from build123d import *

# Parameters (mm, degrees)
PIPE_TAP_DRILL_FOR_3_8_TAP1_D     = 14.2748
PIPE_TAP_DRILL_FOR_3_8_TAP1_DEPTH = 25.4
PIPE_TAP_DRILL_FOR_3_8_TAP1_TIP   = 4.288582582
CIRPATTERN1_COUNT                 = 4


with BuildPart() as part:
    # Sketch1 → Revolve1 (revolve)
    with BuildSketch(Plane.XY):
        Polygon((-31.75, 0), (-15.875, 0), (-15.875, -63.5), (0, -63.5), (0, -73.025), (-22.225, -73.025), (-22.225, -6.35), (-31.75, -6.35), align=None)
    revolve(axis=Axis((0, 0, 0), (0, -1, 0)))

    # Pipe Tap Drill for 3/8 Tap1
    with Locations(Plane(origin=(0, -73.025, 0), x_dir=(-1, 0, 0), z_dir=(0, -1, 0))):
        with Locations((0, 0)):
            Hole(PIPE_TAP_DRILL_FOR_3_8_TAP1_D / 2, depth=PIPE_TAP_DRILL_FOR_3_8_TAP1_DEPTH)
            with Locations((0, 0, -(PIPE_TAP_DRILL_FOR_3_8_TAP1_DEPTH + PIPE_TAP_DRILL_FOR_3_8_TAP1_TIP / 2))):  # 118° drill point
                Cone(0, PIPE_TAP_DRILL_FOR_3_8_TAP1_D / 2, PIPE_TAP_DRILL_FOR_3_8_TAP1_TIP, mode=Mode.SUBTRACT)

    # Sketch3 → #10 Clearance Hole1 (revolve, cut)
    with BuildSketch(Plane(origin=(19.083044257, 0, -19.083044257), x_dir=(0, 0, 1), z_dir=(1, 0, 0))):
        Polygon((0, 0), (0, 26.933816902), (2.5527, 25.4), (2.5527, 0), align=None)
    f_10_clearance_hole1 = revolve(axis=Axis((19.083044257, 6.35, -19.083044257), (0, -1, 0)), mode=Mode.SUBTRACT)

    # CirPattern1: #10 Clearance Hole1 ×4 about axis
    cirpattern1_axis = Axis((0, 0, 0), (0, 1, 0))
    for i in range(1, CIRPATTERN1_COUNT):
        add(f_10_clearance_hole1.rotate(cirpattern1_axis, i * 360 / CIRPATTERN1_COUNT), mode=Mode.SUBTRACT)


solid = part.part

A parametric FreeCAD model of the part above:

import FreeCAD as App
import Part
import Sketcher
Q = App.Units.Quantity


def add_polygon(sketch, points):
    """Adds a closed chain of lines whose ends are joined by coincident constraints."""
    first, n = sketch.GeometryCount, len(points)
    for a, b in zip(points, points[1:] + points[:1]):
        sketch.addGeometry(Part.LineSegment(App.Vector(*a, 0), App.Vector(*b, 0)), False)
    for i in range(n):
        sketch.addConstraint(Sketcher.Constraint("Coincident", first + i, 2, first + (i + 1) % n, 1))

doc = App.newDocument("Part")
body = doc.addObject("PartDesign::Body", "Body")

# Sketch on XY plane
sketch1 = body.newObject("Sketcher::SketchObject", "Sketch")
sketch1.AttachmentSupport = (doc.getObject("XY_Plane"), [""])
sketch1.MapMode = "FlatFace"
add_polygon(sketch1, [(-16, 0), (-32, 0), (-32, -6), (-22, -6), (-22, -73), (0, -73), (0, -64), (-16, -64)])  # lines 0-7
sketch1.addConstraint(Sketcher.Constraint("Horizontal", 0))
sketch1.addConstraint(Sketcher.Constraint("Vertical", 1))
sketch1.addConstraint(Sketcher.Constraint("Horizontal", 2))
sketch1.addConstraint(Sketcher.Constraint("Vertical", 3))
sketch1.addConstraint(Sketcher.Constraint("Horizontal", 4))
sketch1.addConstraint(Sketcher.Constraint("Vertical", 5))
sketch1.addConstraint(Sketcher.Constraint("Horizontal", 6))
sketch1.addConstraint(Sketcher.Constraint("Vertical", 7))
sketch1.addConstraint(Sketcher.Constraint("PointOnObject", 0, 2, -1))
sketch1.addConstraint(Sketcher.Constraint("PointOnObject", 4, 2, -2))
sketch1.addConstraint(Sketcher.Constraint("Equal", 0, 6))
sketch1.addConstraint(Sketcher.Constraint("Equal", 2, 5))
sketch1.addConstraint(Sketcher.Constraint("DistanceY", 7, 1, 7, 2, Q("2.5 in")))
sketch1.addConstraint(Sketcher.Constraint("DistanceY", 1, 2, 1, 1, Q("0.25 in")))
sketch1.addConstraint(Sketcher.Constraint("DistanceX", 0, 2, 0, 1, Q("0.625 in")))
sketch1.addConstraint(Sketcher.Constraint("DistanceX", 2, 1, 2, 2, Q("0.375 in")))
revolution = body.newObject("PartDesign::Revolution", "Revolution")
revolution.Profile = sketch1
revolution.ReferenceAxis = (sketch1, ["V_Axis"])
revolution.Angle = 360

# Sketch on XZ plane
sketch2 = body.newObject("Sketcher::SketchObject", "Sketch001")
sketch2.AttachmentSupport = (doc.getObject("XZ_Plane"), [""])
sketch2.MapMode = "FlatFace"
sketch2.AttachmentOffset = App.Placement(App.Vector(0, 0, 2.875 * 25.4), App.Rotation())
sketch2.addGeometry(Part.Circle(App.Vector(0, 0, 0), App.Vector(0, 0, 1), 7), False)
sketch2.addConstraint(Sketcher.Constraint("Coincident", 0, 3, -1, 1))
sketch2.addConstraint(Sketcher.Constraint("Diameter", 0, Q("0.562 in")))
doc.recompute()
hole = body.newObject("PartDesign::Hole", "Hole")
hole.Profile = sketch2
hole.ThreadType = "None"
hole.Diameter = Q("0.562 in")
hole.DepthType = "Dimension"
hole.Depth = Q("1 in")
hole.DrillPoint = "Angled"
hole.DrillPointAngle = 118

# Sketch on YZ plane
sketch3 = body.newObject("Sketcher::SketchObject", "Sketch002")
sketch3.AttachmentSupport = (doc.getObject("YZ_Plane"), [""])
sketch3.MapMode = "FlatFace"
sketch3.AttachmentOffset = App.Placement(App.Vector(0, 0, 19.083044), App.Rotation())
add_polygon(sketch3, [(-26.9, -19.1), (0, -19.1), (0, -16.5), (-25.4, -16.5)])  # lines 0-3
sketch3.addGeometry(Part.LineSegment(App.Vector(0, -19.1, 0), App.Vector(-26.9, -19.1, 0)), True)  # axis
sketch3.addConstraint(Sketcher.Constraint("Horizontal", 0))
sketch3.addConstraint(Sketcher.Constraint("Vertical", 1))
sketch3.addConstraint(Sketcher.Constraint("Horizontal", 2))
sketch3.addConstraint(Sketcher.Constraint("Horizontal", 4))
sketch3.addConstraint(Sketcher.Constraint("Coincident", 4, 1, 0, 2))
sketch3.addConstraint(Sketcher.Constraint("PointOnObject", 0, 2, -2))
sketch3.addConstraint(Sketcher.Constraint("Equal", 0, 4))
sketch3.addConstraint(Sketcher.Constraint("DistanceX", 2, 2, 2, 1, Q("1 in")))
sketch3.addConstraint(Sketcher.Constraint("Angle", 3, Q("-121 deg")))
sketch3.addConstraint(Sketcher.Constraint("DistanceY", 1, 1, 1, 2, Q("0.1005 in")))
sketch3.addConstraint(Sketcher.Constraint("DistanceY", 0, 2, -1, 1, Q("19.083044 mm")))
groove = body.newObject("PartDesign::Groove", "Groove")
groove.Profile = sketch3
groove.ReferenceAxis = (sketch3, ["Axis0"])
groove.Angle = 360
doc.recompute()

polarpattern = body.newObject("PartDesign::PolarPattern", "PolarPattern")
polarpattern.Originals = [groove]
polarpattern.Axis = (doc.getObject("Y_Axis"), [""])
polarpattern.Angle = 360
polarpattern.Occurrences = 4
body.Tip = polarpattern

doc.recompute()
